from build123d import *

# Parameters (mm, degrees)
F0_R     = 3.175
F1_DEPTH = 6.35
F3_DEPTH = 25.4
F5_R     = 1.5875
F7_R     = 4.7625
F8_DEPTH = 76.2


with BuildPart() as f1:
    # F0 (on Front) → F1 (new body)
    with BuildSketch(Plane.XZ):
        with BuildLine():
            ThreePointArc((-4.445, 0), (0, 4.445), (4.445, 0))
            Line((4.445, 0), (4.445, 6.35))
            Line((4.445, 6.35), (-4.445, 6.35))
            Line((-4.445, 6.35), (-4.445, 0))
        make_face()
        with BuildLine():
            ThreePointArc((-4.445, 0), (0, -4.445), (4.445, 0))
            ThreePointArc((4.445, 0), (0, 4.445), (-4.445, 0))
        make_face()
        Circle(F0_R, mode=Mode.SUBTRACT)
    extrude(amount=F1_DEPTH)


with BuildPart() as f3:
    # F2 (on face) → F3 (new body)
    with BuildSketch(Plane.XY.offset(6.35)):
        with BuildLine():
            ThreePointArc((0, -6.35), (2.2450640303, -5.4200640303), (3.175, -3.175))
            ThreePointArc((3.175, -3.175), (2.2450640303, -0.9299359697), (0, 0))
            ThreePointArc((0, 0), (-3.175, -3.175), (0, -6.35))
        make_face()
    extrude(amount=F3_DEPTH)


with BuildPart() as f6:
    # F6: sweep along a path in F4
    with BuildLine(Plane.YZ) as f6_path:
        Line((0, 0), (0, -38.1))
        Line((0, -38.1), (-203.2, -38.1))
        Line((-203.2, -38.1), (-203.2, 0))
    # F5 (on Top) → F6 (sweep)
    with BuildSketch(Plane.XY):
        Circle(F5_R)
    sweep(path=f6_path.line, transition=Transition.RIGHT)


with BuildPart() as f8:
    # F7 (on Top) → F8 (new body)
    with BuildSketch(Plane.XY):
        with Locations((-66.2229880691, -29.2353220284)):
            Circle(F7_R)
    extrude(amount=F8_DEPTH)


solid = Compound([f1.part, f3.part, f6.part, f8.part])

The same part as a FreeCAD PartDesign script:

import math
import FreeCAD as App
import Part
import Sketcher
Q = App.Units.Quantity

doc = App.newDocument("Part")
body = doc.addObject("PartDesign::Body", "Body")

# Sketch on XZ plane
sketch1 = body.newObject("Sketcher::SketchObject", "Sketch")
sketch1.AttachmentSupport = (doc.getObject("XZ_Plane"), [""])
sketch1.MapMode = "FlatFace"
sketch1.addGeometry([
    Part.LineSegment(App.Vector(4.4, 0, 0), App.Vector(4.4, 6.3, 0)),  # 0
    Part.LineSegment(App.Vector(4.4, 6.3, 0), App.Vector(-4.4, 6.3, 0)),  # 1
    Part.LineSegment(App.Vector(-4.4, 6.3, 0), App.Vector(-4.4, 0, 0)),  # 2
    Part.ArcOfCircle(Part.Circle(App.Vector(0, 0, 0), App.Vector(0, 0, 1), 4.4), math.radians(180), math.radians(360)),  # 3
    Part.Circle(App.Vector(0, 0, 0), App.Vector(0, 0, 1), 3.2),  # 4
], False)
sketch1.addConstraint([
    Sketcher.Constraint("Coincident", 0, 2, 1, 1),
    Sketcher.Constraint("Coincident", 1, 2, 2, 1),
    Sketcher.Constraint("Tangent", 2, 2, 3, 1),
    Sketcher.Constraint("Tangent", 3, 2, 0, 1),
    Sketcher.Constraint("Vertical", 0),
    Sketcher.Constraint("Horizontal", 1),
    Sketcher.Constraint("Vertical", 2),
    Sketcher.Constraint("Coincident", 3, 3, -1, 1),
    Sketcher.Constraint("Coincident", 4, 3, -1, 1),
    Sketcher.Constraint("Diameter", 4, Q("0.25 in")),
    Sketcher.Constraint("Radius", 3, Q("0.175 in")),
    Sketcher.Constraint("DistanceY", 0, 1, 0, 2, Q("0.25 in")),
])
pad1 = body.newObject("PartDesign::Pad", "Pad")
pad1.Profile = sketch1
pad1.Length = Q("0.25 in")
body2 = doc.addObject("PartDesign::Body", "Body001")

# Sketch on XY plane
sketch2 = body2.newObject("Sketcher::SketchObject", "Sketch001")
sketch2.AttachmentSupport = (doc.getObject("XY_Plane001"), [""])
sketch2.MapMode = "FlatFace"
sketch2.AttachmentOffset = App.Placement(App.Vector(0, 0, 0.25 * 25.4), App.Rotation())
sketch2.addGeometry([
    Part.ArcOfCircle(Part.Circle(App.Vector(0, -3.2, 0), App.Vector(0, 0, 1), 3.2), math.radians(-90), math.radians(0)),
    Part.ArcOfCircle(Part.Circle(App.Vector(0, -3.2, 0), App.Vector(0, 0, 1), 3.2), math.radians(0), math.radians(90)),
    Part.ArcOfCircle(Part.Circle(App.Vector(0, -3.2, 0), App.Vector(0, 0, 1), 3.2), math.radians(90), math.radians(270)),
], False)
sketch2.addConstraint([
    Sketcher.Constraint("Tangent", 0, 2, 1, 1),
    Sketcher.Constraint("Tangent", 1, 2, 2, 1),
    Sketcher.Constraint("Tangent", 2, 2, 0, 1),
    Sketcher.Constraint("Coincident", 1, 2, -1, 1),
    Sketcher.Constraint("PointOnObject", 0, 3, -2),
    Sketcher.Constraint("PointOnObject", 2, 2, -2),
    Sketcher.Constraint("Horizontal", 2, 3, 0, 2),
    Sketcher.Constraint("Radius", 0, Q("0.125 in")),
])
pad2 = body2.newObject("PartDesign::Pad", "Pad001")
pad2.Profile = sketch2
pad2.Length = Q("1 in")
body3 = doc.addObject("PartDesign::Body", "Body002")

# Sketch on XY plane
sketch3 = body3.newObject("Sketcher::SketchObject", "Sketch002")
sketch3.AttachmentSupport = (doc.getObject("XY_Plane002"), [""])
sketch3.MapMode = "FlatFace"
sketch3.addGeometry(Part.Circle(App.Vector(0, 0, 0), App.Vector(0, 0, 1), 1.6), False)
sketch3.addConstraint([
    Sketcher.Constraint("Coincident", 0, 3, -1, 1),
    Sketcher.Constraint("Diameter", 0, Q("0.125 in")),
])

# Sketch on YZ plane
sketch4 = body3.newObject("Sketcher::SketchObject", "Sketch003")
sketch4.AttachmentSupport = (doc.getObject("YZ_Plane002"), [""])
sketch4.MapMode = "FlatFace"
sketch4.addGeometry([
    Part.LineSegment(App.Vector(0, 0, 0), App.Vector(0, -38, 0)),
    Part.LineSegment(App.Vector(0, -38, 0), App.Vector(-203, -38, 0)),
    Part.LineSegment(App.Vector(-203, -38, 0), App.Vector(-203, 0, 0)),
], False)
sketch4.addConstraint([
    Sketcher.Constraint("Coincident", 0, 2, 1, 1),
    Sketcher.Constraint("Coincident", 1, 2, 2, 1),
    Sketcher.Constraint("Vertical", 0),
    Sketcher.Constraint("Horizontal", 1),
    Sketcher.Constraint("Vertical", 2),
    Sketcher.Constraint("Coincident", 0, 1, -1, 1),
    Sketcher.Constraint("PointOnObject", 2, 2, -1),
    Sketcher.Constraint("DistanceX", 1, 2, 1, 1, Q("8 in")),
    Sketcher.Constraint("DistanceY", 0, 2, 0, 1, Q("1.5 in")),
])
doc.recompute()

additivepipe = body3.newObject("PartDesign::AdditivePipe", "AdditivePipe")
additivepipe.Profile = sketch3
additivepipe.Spine = (sketch4, ["Edge1", "Edge2", "Edge3"])
additivepipe.Transition = "Right corner"
body4 = doc.addObject("PartDesign::Body", "Body003")

# Sketch on XY plane
sketch5 = body4.newObject("Sketcher::SketchObject", "Sketch004")
sketch5.AttachmentSupport = (doc.getObject("XY_Plane003"), [""])
sketch5.MapMode = "FlatFace"
sketch5.addGeometry(Part.Circle(App.Vector(-66.2, -29.2, 0), App.Vector(0, 0, 1), 4.8), False)
sketch5.addConstraint([
    Sketcher.Constraint("Diameter", 0, Q("0.375 in")),
    Sketcher.Constraint("DistanceX", 0, 3, -1, 1, Q("66.222988 mm")),
    Sketcher.Constraint("DistanceY", 0, 3, -1, 1, Q("29.235322 mm")),
])
pad3 = body4.newObject("PartDesign::Pad", "Pad002")
pad3.Profile = sketch5
pad3.Length = Q("3 in")

doc.recompute()
